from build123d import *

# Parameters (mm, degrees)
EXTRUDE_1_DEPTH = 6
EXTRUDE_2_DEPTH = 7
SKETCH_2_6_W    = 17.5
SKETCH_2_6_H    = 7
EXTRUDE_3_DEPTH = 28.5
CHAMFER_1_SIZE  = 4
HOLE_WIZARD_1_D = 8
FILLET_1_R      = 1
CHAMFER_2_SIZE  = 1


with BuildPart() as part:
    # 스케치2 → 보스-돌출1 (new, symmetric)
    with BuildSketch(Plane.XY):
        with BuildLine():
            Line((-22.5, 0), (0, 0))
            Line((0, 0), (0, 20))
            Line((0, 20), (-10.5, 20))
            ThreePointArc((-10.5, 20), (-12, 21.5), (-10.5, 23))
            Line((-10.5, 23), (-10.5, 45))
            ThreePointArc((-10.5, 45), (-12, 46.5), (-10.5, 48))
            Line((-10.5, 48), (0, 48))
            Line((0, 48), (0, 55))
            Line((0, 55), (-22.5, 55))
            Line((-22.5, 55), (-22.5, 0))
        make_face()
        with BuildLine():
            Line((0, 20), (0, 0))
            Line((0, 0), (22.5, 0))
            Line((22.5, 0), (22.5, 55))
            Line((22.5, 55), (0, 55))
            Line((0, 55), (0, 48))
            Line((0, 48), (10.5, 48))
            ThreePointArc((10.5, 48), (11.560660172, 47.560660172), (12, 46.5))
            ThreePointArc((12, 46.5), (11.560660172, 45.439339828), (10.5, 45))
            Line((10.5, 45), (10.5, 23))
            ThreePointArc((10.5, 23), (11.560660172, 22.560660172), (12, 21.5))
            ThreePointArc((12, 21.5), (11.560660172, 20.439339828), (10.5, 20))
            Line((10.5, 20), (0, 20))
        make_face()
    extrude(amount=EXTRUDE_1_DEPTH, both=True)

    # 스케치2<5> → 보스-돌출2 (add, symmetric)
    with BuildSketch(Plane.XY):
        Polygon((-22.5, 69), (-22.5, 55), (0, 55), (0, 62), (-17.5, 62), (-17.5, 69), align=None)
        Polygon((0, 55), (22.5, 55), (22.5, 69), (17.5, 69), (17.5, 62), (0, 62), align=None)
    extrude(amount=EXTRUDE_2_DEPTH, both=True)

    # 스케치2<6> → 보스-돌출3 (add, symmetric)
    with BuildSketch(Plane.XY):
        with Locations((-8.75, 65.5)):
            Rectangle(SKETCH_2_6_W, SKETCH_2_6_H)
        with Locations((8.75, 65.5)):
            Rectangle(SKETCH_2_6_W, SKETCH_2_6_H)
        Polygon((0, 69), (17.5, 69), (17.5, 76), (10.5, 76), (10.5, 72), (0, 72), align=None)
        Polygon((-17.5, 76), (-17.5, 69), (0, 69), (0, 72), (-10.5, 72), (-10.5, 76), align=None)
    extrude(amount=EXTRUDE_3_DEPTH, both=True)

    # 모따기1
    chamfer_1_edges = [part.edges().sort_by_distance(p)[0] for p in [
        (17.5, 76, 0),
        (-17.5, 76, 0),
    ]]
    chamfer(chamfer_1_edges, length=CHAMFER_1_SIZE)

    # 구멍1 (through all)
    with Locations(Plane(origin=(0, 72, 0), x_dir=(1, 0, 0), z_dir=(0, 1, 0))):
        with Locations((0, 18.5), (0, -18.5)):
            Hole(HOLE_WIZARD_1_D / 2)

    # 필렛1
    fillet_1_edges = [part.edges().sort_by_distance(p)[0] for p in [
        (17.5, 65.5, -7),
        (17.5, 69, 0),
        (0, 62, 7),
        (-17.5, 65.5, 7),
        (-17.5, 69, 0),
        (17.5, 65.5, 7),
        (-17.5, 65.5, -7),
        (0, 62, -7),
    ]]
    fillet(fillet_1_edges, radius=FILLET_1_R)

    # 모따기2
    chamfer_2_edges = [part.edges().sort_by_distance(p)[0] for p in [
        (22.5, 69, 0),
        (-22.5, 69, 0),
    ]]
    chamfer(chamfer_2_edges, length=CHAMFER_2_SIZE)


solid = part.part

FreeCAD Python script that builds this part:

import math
import FreeCAD as App
import Part
import Sketcher
from FreeCAD import Vector
Q = App.Units.Quantity


def edges_at(feature, points):
    """Names of the edges that pass closest to the given points."""
    edges = feature.Shape.Edges
    near = lambda p: min(range(len(edges)), key=lambda i: edges[i].distToShape(Part.Vertex(*p))[0])
    return sorted({f"Edge{near(p) + 1}" for p in points})


def add_polygon(sketch, points):
    """Adds a closed chain of lines whose ends are joined by coincident constraints."""
    first, n = sketch.GeometryCount, len(points)
    for a, b in zip(points, points[1:] + points[:1]):
        sketch.addGeometry(Part.LineSegment(App.Vector(*a, 0), App.Vector(*b, 0)), False)
    for i in range(n):
        sketch.addConstraint(Sketcher.Constraint("Coincident", first + i, 2, first + (i + 1) % n, 1))

doc = App.newDocument("Part")
body = doc.addObject("PartDesign::Body", "Body")

# Sketch on XY plane
sketch1 = body.newObject("Sketcher::SketchObject", "Sketch")
sketch1.AttachmentSupport = (doc.getObject("XY_Plane"), [""])
sketch1.MapMode = "FlatFace"
add_polygon(sketch1, [(-22.5, 0), (22.5, 0), (22.5, 55), (-22.5, 55)])  # lines 0-3
sketch1.addGeometry(Part.ArcOfCircle(Part.Circle(Vector(-10.5, 21.5, 0), Vector(0, 0, 1), 1.5), math.radians(90), math.radians(270)), False)  # 4
sketch1.addGeometry(Part.LineSegment(Vector(-10.5, 23, 0), Vector(-10.5, 45, 0)), False)  # 5
sketch1.addGeometry(Part.ArcOfCircle(Part.Circle(Vector(-10.5, 46.5, 0), Vector(0, 0, 1), 1.5), math.radians(90), math.radians(270)), False)  # 6
sketch1.addGeometry(Part.LineSegment(Vector(-10.5, 48, 0), Vector(10.5, 48, 0)), False)  # 7
sketch1.addGeometry(Part.ArcOfCircle(Part.Circle(Vector(10.5, 46.5, 0), Vector(0, 0, 1), 1.5), math.radians(0), math.radians(90)), False)  # 8
sketch1.addGeometry(Part.ArcOfCircle(Part.Circle(Vector(10.5, 46.5, 0), Vector(0, 0, 1), 1.5), math.radians(-90), math.radians(0)), False)  # 9
sketch1.addGeometry(Part.LineSegment(Vector(10.5, 45, 0), Vector(10.5, 23, 0)), False)  # 10
sketch1.addGeometry(Part.ArcOfCircle(Part.Circle(Vector(10.5, 21.5, 0), Vector(0, 0, 1), 1.5), math.radians(0), math.radians(90)), False)  # 11
sketch1.addGeometry(Part.ArcOfCircle(Part.Circle(Vector(10.5, 21.5, 0), Vector(0, 0, 1), 1.5), math.radians(-90), math.radians(0)), False)  # 12
sketch1.addGeometry(Part.LineSegment(Vector(10.5, 20, 0), Vector(-10.5, 20, 0)), False)  # 13
sketch1.addConstraint([
    Sketcher.Constraint("Coincident", 4, 1, 5, 1),
    Sketcher.Constraint("Coincident", 5, 2, 6, 2),
    Sketcher.Constraint("Tangent", 6, 1, 7, 1),
    Sketcher.Constraint("Tangent", 7, 2, 8, 2),
    Sketcher.Constraint("Tangent", 8, 1, 9, 2),
    Sketcher.Constraint("Coincident", 9, 1, 10, 1),
    Sketcher.Constraint("Coincident", 10, 2, 11, 2),
    Sketcher.Constraint("Tangent", 11, 1, 12, 2),
    Sketcher.Constraint("Tangent", 12, 1, 13, 1),
    Sketcher.Constraint("Tangent", 13, 2, 4, 2),
    Sketcher.Constraint("Horizontal", 0),
    Sketcher.Constraint("Vertical", 1),
    Sketcher.Constraint("Horizontal", 2),
    Sketcher.Constraint("Vertical", 3),
    Sketcher.Constraint("Vertical", 5),
    Sketcher.Constraint("Horizontal", 7),
    Sketcher.Constraint("Vertical", 10),
    Sketcher.Constraint("Horizontal", 13),
    Sketcher.Constraint("Equal", 4, 6),
    Sketcher.Constraint("Equal", 6, 8),
    Sketcher.Constraint("Equal", 8, 9),
    Sketcher.Constraint("Equal", 9, 11),
    Sketcher.Constraint("Equal", 11, 12),
    Sketcher.Constraint("Symmetric", 0, 2, 3, 2, -1, 1),
    Sketcher.Constraint("Horizontal", 9, 3, 8, 1),
    Sketcher.Constraint("Horizontal", 12, 3, 11, 1),
    Sketcher.Constraint("Vertical", 4, 3, 6, 3),
    Sketcher.Constraint("Vertical", 9, 3, 11, 3),
    Sketcher.Constraint("Vertical", 6, 3, 4, 1),
    Sketcher.Constraint("Vertical", 7, 2, 9, 1),
    Sketcher.Constraint("Radius", 4, Q("1.5 mm")),
    Sketcher.Constraint("DistanceX", 0, 1, 0, 2, Q("45 mm")),
    Sketcher.Constraint("DistanceX", 7, 1, 7, 2, Q("21 mm")),
    Sketcher.Constraint("DistanceY", 1, 1, 1, 2, Q("55 mm")),
    Sketcher.Constraint("DistanceY", 5, 1, 5, 2, Q("22 mm")),
    Sketcher.Constraint("DistanceY", -1, 1, 4, 1, Q("23 mm")),
    Sketcher.Constraint("DistanceX", -1, 1, 8, 1, Q("12 mm")),
])
pad1 = body.newObject("PartDesign::Pad", "Pad")
pad1.Profile = sketch1
pad1.Length = 12
pad1.Midplane = True

# Sketch on XY plane
sketch2 = body.newObject("Sketcher::SketchObject", "Sketch001")
sketch2.AttachmentSupport = (doc.getObject("XY_Plane"), [""])
sketch2.MapMode = "FlatFace"
add_polygon(sketch2, [(-22, 69), (-22, 55), (22, 55), (22, 69), (18, 69), (18, 62), (-18, 62), (-18, 69)])  # lines 0-7
sketch2.addConstraint([
    Sketcher.Constraint("Vertical", 0),
    Sketcher.Constraint("Horizontal", 1),
    Sketcher.Constraint("Vertical", 2),
    Sketcher.Constraint("Horizontal", 3),
    Sketcher.Constraint("Vertical", 4),
    Sketcher.Constraint("Horizontal", 5),
    Sketcher.Constraint("Vertical", 6),
    Sketcher.Constraint("Horizontal", 7),
    Sketcher.Constraint("Symmetric", 3, 2, 6, 2, -2),
    Sketcher.Constraint("Equal", 3, 7),
    Sketcher.Constraint("DistanceX", 1, 1, 1, 2, Q("45 mm")),
    Sketcher.Constraint("DistanceX", 3, 2, 3, 1, Q("5 mm")),
    Sketcher.Constraint("DistanceY", 0, 2, 0, 1, Q("14 mm")),
    Sketcher.Constraint("DistanceY", 4, 2, 4, 1, Q("7 mm")),
    Sketcher.Constraint("DistanceY", -1, 1, 0, 2, Q("55 mm")),
])
pad2 = body.newObject("PartDesign::Pad", "Pad001")
pad2.Profile = sketch2
pad2.Length = 14
pad2.Midplane = True

# Sketch on XY plane
sketch3 = body.newObject("Sketcher::SketchObject", "Sketch002")
sketch3.AttachmentSupport = (doc.getObject("XY_Plane"), [""])
sketch3.MapMode = "FlatFace"
add_polygon(sketch3, [(-17.5, 62), (17.5, 62), (17.5, 76), (10.5, 76), (10.5, 72), (-10.5, 72), (-10.5, 76), (-17.5, 76)])  # lines 0-7
sketch3.addConstraint([
    Sketcher.Constraint("Horizontal", 0),
    Sketcher.Constraint("Vertical", 1),
    Sketcher.Constraint("Horizontal", 2),
    Sketcher.Constraint("Vertical", 3),
    Sketcher.Constraint("Horizontal", 4),
    Sketcher.Constraint("Vertical", 5),
    Sketcher.Constraint("Horizontal", 6),
    Sketcher.Constraint("Vertical", 7),
    Sketcher.Constraint("Symmetric", 2, 2, 5, 2, -2),
    Sketcher.Constraint("Equal", 2, 6),
    Sketcher.Constraint("DistanceX", 0, 1, 0, 2, Q("35 mm")),
    Sketcher.Constraint("DistanceX", 2, 2, 2, 1, Q("7 mm")),
    Sketcher.Constraint("DistanceY", 1, 1, 1, 2, Q("14 mm")),
    Sketcher.Constraint("DistanceY", 3, 2, 3, 1, Q("4 mm")),
    Sketcher.Constraint("DistanceY", -1, 1, 0, 2, Q("62 mm")),
])
pad3 = body.newObject("PartDesign::Pad", "Pad002")
pad3.Profile = sketch3
pad3.Length = 57
pad3.Midplane = True
doc.recompute()

chamfer = body.newObject("PartDesign::Chamfer", "Chamfer")
chamfer.Base = (pad3, edges_at(pad3, [(17.5, 76, 0), (-17.5, 76, 0)]))
chamfer.Size = 4

# Sketch on XZ plane
sketch4 = body.newObject("Sketcher::SketchObject", "Sketch003")
sketch4.AttachmentSupport = (doc.getObject("XZ_Plane"), [""])
sketch4.MapMode = "FlatFace"
sketch4.AttachmentOffset = App.Placement(Vector(0, 0, -72), App.Rotation())
sketch4.addGeometry([
    Part.Circle(Vector(0, -18.5, 0), Vector(0, 0, 1), 4),
    Part.Circle(Vector(0, 18.5, 0), Vector(0, 0, 1), 4),
], False)
sketch4.addConstraint([
    Sketcher.Constraint("Equal", 0, 1),
    Sketcher.Constraint("Symmetric", 0, 3, 1, 3, -1, 1),
    Sketcher.Constraint("PointOnObject", 0, 3, -2),
    Sketcher.Constraint("Diameter", 0, Q("8 mm")),
    Sketcher.Constraint("DistanceY", 0, 3, 1, 3, Q("37 mm")),
])
doc.recompute()
hole = body.newObject("PartDesign::Hole", "Hole")
hole.Profile = sketch4
hole.ThreadType = "None"
hole.Diameter = 8
hole.DepthType = "ThroughAll"
hole.Reversed = True
doc.recompute()

fillet = body.newObject("PartDesign::Fillet", "Fillet")
fillet.Base = (hole, edges_at(hole, [
    (17.5, 65.5, -7),
    (17.5, 69, 0),
    (0, 62, 7),
    (-17.5, 65.5, 7),
    (-17.5, 69, 0),
    (17.5, 65.5, 7),
    (-17.5, 65.5, -7),
    (0, 62, -7),
]))
fillet.Radius = 1
doc.recompute()

chamfer2 = body.newObject("PartDesign::Chamfer", "Chamfer001")
chamfer2.Base = (fillet, edges_at(fillet, [(22.5, 69, 0), (-22.5, 69, 0)]))
chamfer2.Size = 1

doc.recompute()
